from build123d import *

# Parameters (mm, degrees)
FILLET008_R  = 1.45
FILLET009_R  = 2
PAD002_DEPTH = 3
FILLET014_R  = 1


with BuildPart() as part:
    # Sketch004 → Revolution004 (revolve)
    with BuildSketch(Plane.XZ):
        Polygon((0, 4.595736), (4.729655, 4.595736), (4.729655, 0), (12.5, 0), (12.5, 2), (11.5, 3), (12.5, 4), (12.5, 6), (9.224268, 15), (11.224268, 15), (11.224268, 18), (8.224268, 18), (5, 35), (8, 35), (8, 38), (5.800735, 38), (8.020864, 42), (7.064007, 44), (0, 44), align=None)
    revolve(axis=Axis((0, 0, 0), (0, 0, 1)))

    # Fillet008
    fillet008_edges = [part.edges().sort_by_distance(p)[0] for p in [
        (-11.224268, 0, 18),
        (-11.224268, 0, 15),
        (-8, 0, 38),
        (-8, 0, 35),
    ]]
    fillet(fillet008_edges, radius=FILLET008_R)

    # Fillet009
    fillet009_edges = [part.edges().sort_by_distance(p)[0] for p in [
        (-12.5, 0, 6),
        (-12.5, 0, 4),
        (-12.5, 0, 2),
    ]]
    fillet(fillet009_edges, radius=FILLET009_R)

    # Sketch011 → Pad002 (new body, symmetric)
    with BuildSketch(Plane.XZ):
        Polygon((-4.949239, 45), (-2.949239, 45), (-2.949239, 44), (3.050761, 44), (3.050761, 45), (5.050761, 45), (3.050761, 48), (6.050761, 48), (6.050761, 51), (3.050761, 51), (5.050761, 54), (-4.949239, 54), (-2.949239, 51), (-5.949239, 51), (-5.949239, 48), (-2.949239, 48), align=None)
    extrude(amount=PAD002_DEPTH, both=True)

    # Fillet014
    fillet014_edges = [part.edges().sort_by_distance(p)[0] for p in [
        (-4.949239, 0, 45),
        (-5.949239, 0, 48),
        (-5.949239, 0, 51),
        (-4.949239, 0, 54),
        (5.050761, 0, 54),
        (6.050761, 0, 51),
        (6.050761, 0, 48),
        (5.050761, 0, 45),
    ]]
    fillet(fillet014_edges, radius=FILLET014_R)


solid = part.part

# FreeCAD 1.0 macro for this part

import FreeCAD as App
import Part
import Sketcher
Q = App.Units.Quantity


def edges_at(feature, points):
    """Names of the edges that pass closest to the given points."""
    edges = feature.Shape.Edges
    near = lambda p: min(range(len(edges)), key=lambda i: edges[i].distToShape(Part.Vertex(*p))[0])
    return sorted({f"Edge{near(p) + 1}" for p in points})


def add_polygon(sketch, points):
    """Adds a closed chain of lines whose ends are joined by coincident constraints."""
    first, n = sketch.GeometryCount, len(points)
    for a, b in zip(points, points[1:] + points[:1]):
        sketch.addGeometry(Part.LineSegment(App.Vector(*a, 0), App.Vector(*b, 0)), False)
    for i in range(n):
        sketch.addConstraint(Sketcher.Constraint("Coincident", first + i, 2, first + (i + 1) % n, 1))

doc = App.newDocument("Part")
body = doc.addObject("PartDesign::Body", "Body")

# Sketch on XZ plane
sketch1 = body.newObject("Sketcher::SketchObject", "Sketch")
sketch1.AttachmentSupport = (doc.getObject("XZ_Plane"), [""])
sketch1.MapMode = "FlatFace"
add_polygon(sketch1, [(0, 4.6), (4.7, 4.6), (4.7, 0), (12.5, 0), (12.5, 2), (11.5, 3), (12.5, 4), (12.5, 6), (9.2, 15), (11.2, 15), (11.2, 18), (8.2, 18), (5, 35), (8, 35), (8, 38), (5.8, 38), (8, 42), (7.1, 44), (0, 44)])  # lines 0-18
sketch1.addConstraint(Sketcher.Constraint("Horizontal", 0))
sketch1.addConstraint(Sketcher.Constraint("Vertical", 1))
sketch1.addConstraint(Sketcher.Constraint("Horizontal", 2))
sketch1.addConstraint(Sketcher.Constraint("Vertical", 3))
sketch1.addConstraint(Sketcher.Constraint("Vertical", 6))
sketch1.addConstraint(Sketcher.Constraint("Horizontal", 8))
sketch1.addConstraint(Sketcher.Constraint("Vertical", 9))
sketch1.addConstraint(Sketcher.Constraint("Horizontal", 10))
sketch1.addConstraint(Sketcher.Constraint("Horizontal", 12))
sketch1.addConstraint(Sketcher.Constraint("Vertical", 13))
sketch1.addConstraint(Sketcher.Constraint("Horizontal", 14))
sketch1.addConstraint(Sketcher.Constraint("Horizontal", 17))
sketch1.addConstraint(Sketcher.Constraint("Vertical", 18))
sketch1.addConstraint(Sketcher.Constraint("PointOnObject", 1, 2, -1))
sketch1.addConstraint(Sketcher.Constraint("PointOnObject", 17, 2, -2))
sketch1.addConstraint(Sketcher.Constraint("Perpendicular", 4, 5))
sketch1.addConstraint(Sketcher.Constraint("Vertical", 3, 2, 5, 2))
sketch1.addConstraint(Sketcher.Constraint("Equal", 10, 12))
sketch1.addConstraint(Sketcher.Constraint("Equal", 8, 3))
sketch1.addConstraint(Sketcher.Constraint("Equal", 3, 6))
sketch1.addConstraint(Sketcher.Constraint("Equal", 12, 9))
sketch1.addConstraint(Sketcher.Constraint("Equal", 9, 13))
sketch1.addConstraint(Sketcher.Constraint("Equal", 4, 5))
sketch1.addConstraint(Sketcher.Constraint("DistanceX", 8, 1, 8, 2, 2.0))
sketch1.addConstraint(Sketcher.Constraint("DistanceX", 10, 2, 10, 1, 3.0))
sketch1.addConstraint(Sketcher.Constraint("Angle", 7, Q("109.999999 deg")))
sketch1.addConstraint(Sketcher.Constraint("DistanceY", -1, 1, 4, 2, 3.0))
sketch1.addConstraint(Sketcher.Constraint("DistanceY", -1, 1, 7, 2, 15.0))
sketch1.addConstraint(Sketcher.Constraint("DistanceX", -1, 1, 11, 2, 5.0))
sketch1.addConstraint(Sketcher.Constraint("DistanceY", -1, 1, 11, 2, 35.0))
sketch1.addConstraint(Sketcher.Constraint("DistanceY", -1, 1, 15, 2, 42.0))
sketch1.addConstraint(Sketcher.Constraint("DistanceY", -1, 1, 16, 2, 44.0))
sketch1.addConstraint(Sketcher.Constraint("DistanceX", -1, 1, 2, 2, 12.5))
sketch1.addConstraint(Sketcher.Constraint("Distance", 15, 4.574819))
sketch1.addConstraint(Sketcher.Constraint("Distance", 16, 2.21711))
sketch1.addConstraint(Sketcher.Constraint("DistanceX", 0, 1, 0, 2, 4.729655))
sketch1.addConstraint(Sketcher.Constraint("DistanceX", 14, 2, 14, 1, 2.199265))
sketch1.addConstraint(Sketcher.Constraint("DistanceY", 1, 2, 1, 1, 4.595736))
revolution = body.newObject("PartDesign::Revolution", "Revolution")
revolution.Profile = sketch1
revolution.ReferenceAxis = (sketch1, ["V_Axis"])
revolution.Angle = 360
doc.recompute()

fillet = body.newObject("PartDesign::Fillet", "Fillet")
fillet.Base = (revolution, edges_at(revolution, [
    (-11.224, 0, 18),
    (-11.224, 0, 15),
    (-8, 0, 38),
    (-8, 0, 35),
]))
fillet.Radius = 1.45
doc.recompute()

fillet2 = body.newObject("PartDesign::Fillet", "Fillet001")
fillet2.Base = (fillet, edges_at(fillet, [(-12.5, 0, 6), (-12.5, 0, 4), (-12.5, 0, 2)]))
fillet2.Radius = 2

# Sketch on XZ plane
sketch2 = body.newObject("Sketcher::SketchObject", "Sketch001")
sketch2.AttachmentSupport = (doc.getObject("XZ_Plane"), [""])
sketch2.MapMode = "FlatFace"
add_polygon(sketch2, [(-4.9, 45), (-2.9, 45), (-2.9, 44), (3.1, 44), (3.1, 45), (5.1, 45), (3.1, 48), (6.1, 48), (6.1, 51), (3.1, 51), (5.1, 54), (-4.9, 54), (-2.9, 51), (-5.9, 51), (-5.9, 48), (-2.9, 48)])  # lines 0-15
sketch2.addConstraint(Sketcher.Constraint("Horizontal", 0))
sketch2.addConstraint(Sketcher.Constraint("Vertical", 1))
sketch2.addConstraint(Sketcher.Constraint("Horizontal", 2))
sketch2.addConstraint(Sketcher.Constraint("Vertical", 3))
sketch2.addConstraint(Sketcher.Constraint("Horizontal", 4))
sketch2.addConstraint(Sketcher.Constraint("Horizontal", 6))
sketch2.addConstraint(Sketcher.Constraint("Vertical", 7))
sketch2.addConstraint(Sketcher.Constraint("Horizontal", 8))
sketch2.addConstraint(Sketcher.Constraint("Horizontal", 10))
sketch2.addConstraint(Sketcher.Constraint("Horizontal", 12))
sketch2.addConstraint(Sketcher.Constraint("Vertical", 13))
sketch2.addConstraint(Sketcher.Constraint("Horizontal", 14))
sketch2.addConstraint(Sketcher.Constraint("Parallel", 5, 11))
sketch2.addConstraint(Sketcher.Constraint("Parallel", 9, 15))
sketch2.addConstraint(Sketcher.Constraint("Horizontal", 0, 2, 3, 2))
sketch2.addConstraint(Sketcher.Constraint("Horizontal", 8, 2, 11, 2))
sketch2.addConstraint(Sketcher.Constraint("Horizontal", 6, 2, 13, 2))
sketch2.addConstraint(Sketcher.Constraint("Vertical", 3, 2, 5, 2))
sketch2.addConstraint(Sketcher.Constraint("Vertical", 5, 2, 8, 2))
sketch2.addConstraint(Sketcher.Constraint("Vertical", 4, 2, 9, 2))
sketch2.addConstraint(Sketcher.Constraint("Vertical", 1, 2, 11, 2))
sketch2.addConstraint(Sketcher.Constraint("Vertical", 11, 2, 14, 2))
sketch2.addConstraint(Sketcher.Constraint("Vertical", 10, 2, 15, 2))
sketch2.addConstraint(Sketcher.Constraint("Equal", 8, 12))
sketch2.addConstraint(Sketcher.Constraint("Equal", 14, 7))
sketch2.addConstraint(Sketcher.Constraint("DistanceX", 0, 1, 0, 2, 2.0))
sketch2.addConstraint(Sketcher.Constraint("DistanceX", 2, 1, 2, 2, 6.0))
sketch2.addConstraint(Sketcher.Constraint("DistanceX", 6, 1, 6, 2, 3.0))
sketch2.addConstraint(Sketcher.Constraint("DistanceY", 1, 2, 1, 1, 1.0))
sketch2.addConstraint(Sketcher.Constraint("DistanceY", -1, 1, 0, 2, 45.0))
sketch2.addConstraint(Sketcher.Constraint("DistanceY", -1, 1, 5, 2, 48.0))
sketch2.addConstraint(Sketcher.Constraint("DistanceX", 0, 2, -1, 1, 2.949239))
pad1 = body.newObject("PartDesign::Pad", "Pad")
pad1.Profile = sketch2
pad1.Length = 6
pad1.Midplane = True
doc.recompute()

fillet3 = body.newObject("PartDesign::Fillet", "Fillet002")
fillet3.Base = (pad1, edges_at(pad1, [
    (-4.949, 0, 45),
    (-5.949, 0, 48),
    (-5.949, 0, 51),
    (-4.949, 0, 54),
    (5.051, 0, 54),
    (6.051, 0, 51),
    (6.051, 0, 48),
    (5.051, 0, 45),
]))
fillet3.Radius = 1

doc.recompute()
